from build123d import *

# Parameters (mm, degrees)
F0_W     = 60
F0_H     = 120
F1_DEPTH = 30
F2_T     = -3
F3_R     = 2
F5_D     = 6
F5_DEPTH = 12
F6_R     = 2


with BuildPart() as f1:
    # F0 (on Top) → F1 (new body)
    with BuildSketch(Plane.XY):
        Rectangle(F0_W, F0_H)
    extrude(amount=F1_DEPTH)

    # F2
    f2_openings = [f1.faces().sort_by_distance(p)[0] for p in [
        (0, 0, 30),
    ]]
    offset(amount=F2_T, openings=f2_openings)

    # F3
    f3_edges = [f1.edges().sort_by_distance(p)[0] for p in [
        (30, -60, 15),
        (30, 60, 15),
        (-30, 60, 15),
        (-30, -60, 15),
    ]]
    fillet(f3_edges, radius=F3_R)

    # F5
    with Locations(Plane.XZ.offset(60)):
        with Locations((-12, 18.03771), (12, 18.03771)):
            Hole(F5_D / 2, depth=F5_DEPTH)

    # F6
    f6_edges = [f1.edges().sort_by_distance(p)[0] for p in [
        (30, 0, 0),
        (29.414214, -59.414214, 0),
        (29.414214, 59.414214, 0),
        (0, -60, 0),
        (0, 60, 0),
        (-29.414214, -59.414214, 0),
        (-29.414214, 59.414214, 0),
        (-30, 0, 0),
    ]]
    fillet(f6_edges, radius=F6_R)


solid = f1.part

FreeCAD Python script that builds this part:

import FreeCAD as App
import Part
import Sketcher
from FreeCAD import Vector
Q = App.Units.Quantity


def edges_at(feature, points):
    """Names of the edges that pass closest to the given points."""
    edges = feature.Shape.Edges
    near = lambda p: min(range(len(edges)), key=lambda i: edges[i].distToShape(Part.Vertex(*p))[0])
    return sorted({f"Edge{near(p) + 1}" for p in points})


def faces_at(feature, points):
    """Names of the faces that lie closest to the given points."""
    faces = feature.Shape.Faces
    near = lambda p: min(range(len(faces)), key=lambda i: faces[i].distToShape(Part.Vertex(*p))[0])
    return sorted({f"Face{near(p) + 1}" for p in points})


def add_polygon(sketch, points):
    """Adds a closed chain of lines whose ends are joined by coincident constraints."""
    first, n = sketch.GeometryCount, len(points)
    for a, b in zip(points, points[1:] + points[:1]):
        sketch.addGeometry(Part.LineSegment(App.Vector(*a, 0), App.Vector(*b, 0)), False)
    for i in range(n):
        sketch.addConstraint(Sketcher.Constraint("Coincident", first + i, 2, first + (i + 1) % n, 1))

doc = App.newDocument("Part")
body = doc.addObject("PartDesign::Body", "Body")

sketch1 = body.newObject("Sketcher::SketchObject", "Sketch")
sketch1.AttachmentSupport = (doc.getObject("XY_Plane"), [""])
sketch1.MapMode = "FlatFace"
add_polygon(sketch1, [(-30, 60), (-30, -60), (30, -60), (30, 60)])
sketch1.addConstraint(Sketcher.Constraint("Vertical", 0))
sketch1.addConstraint(Sketcher.Constraint("Horizontal", 1))
sketch1.addConstraint(Sketcher.Constraint("Vertical", 2))
sketch1.addConstraint(Sketcher.Constraint("Horizontal", 3))
sketch1.addConstraint(Sketcher.Constraint("Symmetric", 0, 2, 2, 2, -1, 1))
sketch1.addConstraint(Sketcher.Constraint("DistanceX", 1, 1, 1, 2, Q("60 mm")))
sketch1.addConstraint(Sketcher.Constraint("DistanceY", 0, 2, 0, 1, Q("120 mm")))
pad1 = body.newObject("PartDesign::Pad", "Pad")
pad1.Profile = sketch1
pad1.Length = 30
doc.recompute()

thickness = body.newObject("PartDesign::Thickness", "Thickness")
thickness.Base = (pad1, faces_at(pad1, [(0, 0, 30)]))
thickness.Value = 3
thickness.Reversed = True
thickness.Join = "Arc"
doc.recompute()

fillet = body.newObject("PartDesign::Fillet", "Fillet")
fillet.Base = (thickness, edges_at(thickness, [
    (30, -60, 15),
    (30, 60, 15),
    (-30, 60, 15),
    (-30, -60, 15),
]))
fillet.Radius = 2

sketch2 = body.newObject("Sketcher::SketchObject", "Sketch001")
sketch2.AttachmentSupport = (doc.getObject("XZ_Plane"), [""])
sketch2.MapMode = "FlatFace"
sketch2.AttachmentOffset = App.Placement(Vector(0, 0, 60), App.Rotation())
sketch2.addGeometry(Part.Circle(Vector(-12, 18.03771, 0), Vector(0, 0, 1), 3), False)
sketch2.addGeometry(Part.Circle(Vector(12, 18.03771, 0), Vector(0, 0, 1), 3), False)
sketch2.addConstraint(Sketcher.Constraint("Equal", 0, 1))
sketch2.addConstraint(Sketcher.Constraint("Symmetric", 0, 3, 1, 3, -2))
sketch2.addConstraint(Sketcher.Constraint("Diameter", 0, Q("6 mm")))
sketch2.addConstraint(Sketcher.Constraint("DistanceX", 0, 3, -1, 1, Q("12 mm")))
sketch2.addConstraint(Sketcher.Constraint("DistanceY", -1, 1, 0, 3, Q("18.03771 mm")))
doc.recompute()
hole = body.newObject("PartDesign::Hole", "Hole")
hole.Profile = sketch2
hole.ThreadType = "None"
hole.Diameter = 6
hole.DepthType = "Dimension"
hole.Depth = 12
hole.DrillPoint = "Flat"
doc.recompute()

fillet2 = body.newObject("PartDesign::Fillet", "Fillet001")
fillet2.Base = (hole, edges_at(hole, [
    (30, 0, 0),
    (29.414, -59.414, 0),
    (29.414, 59.414, 0),
    (0, -60, 0),
    (0, 60, 0),
    (-29.414, -59.414, 0),
    (-29.414, 59.414, 0),
    (-30, 0, 0),
]))
fillet2.Radius = 2

doc.recompute()
